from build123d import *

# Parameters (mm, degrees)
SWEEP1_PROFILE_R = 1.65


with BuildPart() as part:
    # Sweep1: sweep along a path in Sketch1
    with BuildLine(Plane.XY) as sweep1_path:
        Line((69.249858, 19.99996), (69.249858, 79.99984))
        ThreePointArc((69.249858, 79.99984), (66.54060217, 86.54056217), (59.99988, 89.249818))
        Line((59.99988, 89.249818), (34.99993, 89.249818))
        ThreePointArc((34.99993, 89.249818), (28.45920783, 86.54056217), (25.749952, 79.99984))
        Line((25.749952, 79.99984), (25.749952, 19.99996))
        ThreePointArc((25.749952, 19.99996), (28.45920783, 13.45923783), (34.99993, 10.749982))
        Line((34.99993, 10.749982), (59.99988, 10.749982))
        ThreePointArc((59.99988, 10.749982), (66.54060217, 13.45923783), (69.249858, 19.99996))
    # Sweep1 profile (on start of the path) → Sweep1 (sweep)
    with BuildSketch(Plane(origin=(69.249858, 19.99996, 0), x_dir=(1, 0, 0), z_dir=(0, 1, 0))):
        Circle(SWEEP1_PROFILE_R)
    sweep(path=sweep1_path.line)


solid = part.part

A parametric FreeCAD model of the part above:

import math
import FreeCAD as App
import Part
import Sketcher
from FreeCAD import Vector

doc = App.newDocument("Part")
body = doc.addObject("PartDesign::Body", "Body")

# Sketch on XZ plane
sketch1 = body.newObject("Sketcher::SketchObject", "Sketch")
sketch1.AttachmentSupport = (doc.getObject("XZ_Plane"), [""])
sketch1.MapMode = "FlatFace"
sketch1.AttachmentOffset = App.Placement(Vector(0, 0, -19.99996), App.Rotation())
sketch1.addGeometry(Part.Circle(Vector(69.2, 0, 0), Vector(0, 0, 1), 1.6), False)
sketch1.addConstraint(Sketcher.Constraint("PointOnObject", 0, 3, -1))
sketch1.addConstraint(Sketcher.Constraint("Diameter", 0, 3.3))
sketch1.addConstraint(Sketcher.Constraint("DistanceX", -1, 1, 0, 3, 69.249858))

# Sketch on XY plane
sketch2 = body.newObject("Sketcher::SketchObject", "Sketch001")
sketch2.AttachmentSupport = (doc.getObject("XY_Plane"), [""])
sketch2.MapMode = "FlatFace"
sketch2.addGeometry(Part.LineSegment(Vector(69, 20, 0), Vector(69, 80, 0)), False)
sketch2.addGeometry(Part.ArcOfCircle(Part.Circle(Vector(60, 80, 0), Vector(0, 0, 1), 9), math.radians(0), math.radians(90)), False)
sketch2.addGeometry(Part.LineSegment(Vector(60, 89, 0), Vector(35, 89, 0)), False)
sketch2.addGeometry(Part.ArcOfCircle(Part.Circle(Vector(35, 80, 0), Vector(0, 0, 1), 9), math.radians(90), math.radians(180)), False)
sketch2.addGeometry(Part.LineSegment(Vector(26, 80, 0), Vector(26, 20, 0)), False)
sketch2.addGeometry(Part.ArcOfCircle(Part.Circle(Vector(35, 20, 0), Vector(0, 0, 1), 9), math.radians(180), math.radians(270)), False)
sketch2.addGeometry(Part.LineSegment(Vector(35, 11, 0), Vector(60, 11, 0)), False)
sketch2.addGeometry(Part.ArcOfCircle(Part.Circle(Vector(60, 20, 0), Vector(0, 0, 1), 9), math.radians(-90), math.radians(0)), False)
sketch2.addConstraint(Sketcher.Constraint("Tangent", 0, 2, 1, 1))
sketch2.addConstraint(Sketcher.Constraint("Tangent", 1, 2, 2, 1))
sketch2.addConstraint(Sketcher.Constraint("Tangent", 2, 2, 3, 1))
sketch2.addConstraint(Sketcher.Constraint("Tangent", 3, 2, 4, 1))
sketch2.addConstraint(Sketcher.Constraint("Tangent", 4, 2, 5, 1))
sketch2.addConstraint(Sketcher.Constraint("Tangent", 5, 2, 6, 1))
sketch2.addConstraint(Sketcher.Constraint("Tangent", 6, 2, 7, 1))
sketch2.addConstraint(Sketcher.Constraint("Tangent", 7, 2, 0, 1))
sketch2.addConstraint(Sketcher.Constraint("Vertical", 0))
sketch2.addConstraint(Sketcher.Constraint("Horizontal", 2))
sketch2.addConstraint(Sketcher.Constraint("Vertical", 4))
sketch2.addConstraint(Sketcher.Constraint("Horizontal", 6))
sketch2.addConstraint(Sketcher.Constraint("Equal", 1, 3))
sketch2.addConstraint(Sketcher.Constraint("Equal", 3, 5))
sketch2.addConstraint(Sketcher.Constraint("Equal", 5, 7))
sketch2.addConstraint(Sketcher.Constraint("Radius", 1, 9.249978))
sketch2.addConstraint(Sketcher.Constraint("DistanceX", 2, 2, 2, 1, 24.99995))
sketch2.addConstraint(Sketcher.Constraint("DistanceY", 0, 1, 0, 2, 59.99988))
sketch2.addConstraint(Sketcher.Constraint("DistanceX", -1, 1, 1, 3, 59.99988))
sketch2.addConstraint(Sketcher.Constraint("DistanceY", -1, 1, 1, 3, 79.99984))
doc.recompute()

additivepipe = body.newObject("PartDesign::AdditivePipe", "AdditivePipe")
additivepipe.Profile = sketch1
additivepipe.Spine = (sketch2, ["Edge1", "Edge2", "Edge3", "Edge4", "Edge5", "Edge6", "Edge7", "Edge8"])

doc.recompute()
